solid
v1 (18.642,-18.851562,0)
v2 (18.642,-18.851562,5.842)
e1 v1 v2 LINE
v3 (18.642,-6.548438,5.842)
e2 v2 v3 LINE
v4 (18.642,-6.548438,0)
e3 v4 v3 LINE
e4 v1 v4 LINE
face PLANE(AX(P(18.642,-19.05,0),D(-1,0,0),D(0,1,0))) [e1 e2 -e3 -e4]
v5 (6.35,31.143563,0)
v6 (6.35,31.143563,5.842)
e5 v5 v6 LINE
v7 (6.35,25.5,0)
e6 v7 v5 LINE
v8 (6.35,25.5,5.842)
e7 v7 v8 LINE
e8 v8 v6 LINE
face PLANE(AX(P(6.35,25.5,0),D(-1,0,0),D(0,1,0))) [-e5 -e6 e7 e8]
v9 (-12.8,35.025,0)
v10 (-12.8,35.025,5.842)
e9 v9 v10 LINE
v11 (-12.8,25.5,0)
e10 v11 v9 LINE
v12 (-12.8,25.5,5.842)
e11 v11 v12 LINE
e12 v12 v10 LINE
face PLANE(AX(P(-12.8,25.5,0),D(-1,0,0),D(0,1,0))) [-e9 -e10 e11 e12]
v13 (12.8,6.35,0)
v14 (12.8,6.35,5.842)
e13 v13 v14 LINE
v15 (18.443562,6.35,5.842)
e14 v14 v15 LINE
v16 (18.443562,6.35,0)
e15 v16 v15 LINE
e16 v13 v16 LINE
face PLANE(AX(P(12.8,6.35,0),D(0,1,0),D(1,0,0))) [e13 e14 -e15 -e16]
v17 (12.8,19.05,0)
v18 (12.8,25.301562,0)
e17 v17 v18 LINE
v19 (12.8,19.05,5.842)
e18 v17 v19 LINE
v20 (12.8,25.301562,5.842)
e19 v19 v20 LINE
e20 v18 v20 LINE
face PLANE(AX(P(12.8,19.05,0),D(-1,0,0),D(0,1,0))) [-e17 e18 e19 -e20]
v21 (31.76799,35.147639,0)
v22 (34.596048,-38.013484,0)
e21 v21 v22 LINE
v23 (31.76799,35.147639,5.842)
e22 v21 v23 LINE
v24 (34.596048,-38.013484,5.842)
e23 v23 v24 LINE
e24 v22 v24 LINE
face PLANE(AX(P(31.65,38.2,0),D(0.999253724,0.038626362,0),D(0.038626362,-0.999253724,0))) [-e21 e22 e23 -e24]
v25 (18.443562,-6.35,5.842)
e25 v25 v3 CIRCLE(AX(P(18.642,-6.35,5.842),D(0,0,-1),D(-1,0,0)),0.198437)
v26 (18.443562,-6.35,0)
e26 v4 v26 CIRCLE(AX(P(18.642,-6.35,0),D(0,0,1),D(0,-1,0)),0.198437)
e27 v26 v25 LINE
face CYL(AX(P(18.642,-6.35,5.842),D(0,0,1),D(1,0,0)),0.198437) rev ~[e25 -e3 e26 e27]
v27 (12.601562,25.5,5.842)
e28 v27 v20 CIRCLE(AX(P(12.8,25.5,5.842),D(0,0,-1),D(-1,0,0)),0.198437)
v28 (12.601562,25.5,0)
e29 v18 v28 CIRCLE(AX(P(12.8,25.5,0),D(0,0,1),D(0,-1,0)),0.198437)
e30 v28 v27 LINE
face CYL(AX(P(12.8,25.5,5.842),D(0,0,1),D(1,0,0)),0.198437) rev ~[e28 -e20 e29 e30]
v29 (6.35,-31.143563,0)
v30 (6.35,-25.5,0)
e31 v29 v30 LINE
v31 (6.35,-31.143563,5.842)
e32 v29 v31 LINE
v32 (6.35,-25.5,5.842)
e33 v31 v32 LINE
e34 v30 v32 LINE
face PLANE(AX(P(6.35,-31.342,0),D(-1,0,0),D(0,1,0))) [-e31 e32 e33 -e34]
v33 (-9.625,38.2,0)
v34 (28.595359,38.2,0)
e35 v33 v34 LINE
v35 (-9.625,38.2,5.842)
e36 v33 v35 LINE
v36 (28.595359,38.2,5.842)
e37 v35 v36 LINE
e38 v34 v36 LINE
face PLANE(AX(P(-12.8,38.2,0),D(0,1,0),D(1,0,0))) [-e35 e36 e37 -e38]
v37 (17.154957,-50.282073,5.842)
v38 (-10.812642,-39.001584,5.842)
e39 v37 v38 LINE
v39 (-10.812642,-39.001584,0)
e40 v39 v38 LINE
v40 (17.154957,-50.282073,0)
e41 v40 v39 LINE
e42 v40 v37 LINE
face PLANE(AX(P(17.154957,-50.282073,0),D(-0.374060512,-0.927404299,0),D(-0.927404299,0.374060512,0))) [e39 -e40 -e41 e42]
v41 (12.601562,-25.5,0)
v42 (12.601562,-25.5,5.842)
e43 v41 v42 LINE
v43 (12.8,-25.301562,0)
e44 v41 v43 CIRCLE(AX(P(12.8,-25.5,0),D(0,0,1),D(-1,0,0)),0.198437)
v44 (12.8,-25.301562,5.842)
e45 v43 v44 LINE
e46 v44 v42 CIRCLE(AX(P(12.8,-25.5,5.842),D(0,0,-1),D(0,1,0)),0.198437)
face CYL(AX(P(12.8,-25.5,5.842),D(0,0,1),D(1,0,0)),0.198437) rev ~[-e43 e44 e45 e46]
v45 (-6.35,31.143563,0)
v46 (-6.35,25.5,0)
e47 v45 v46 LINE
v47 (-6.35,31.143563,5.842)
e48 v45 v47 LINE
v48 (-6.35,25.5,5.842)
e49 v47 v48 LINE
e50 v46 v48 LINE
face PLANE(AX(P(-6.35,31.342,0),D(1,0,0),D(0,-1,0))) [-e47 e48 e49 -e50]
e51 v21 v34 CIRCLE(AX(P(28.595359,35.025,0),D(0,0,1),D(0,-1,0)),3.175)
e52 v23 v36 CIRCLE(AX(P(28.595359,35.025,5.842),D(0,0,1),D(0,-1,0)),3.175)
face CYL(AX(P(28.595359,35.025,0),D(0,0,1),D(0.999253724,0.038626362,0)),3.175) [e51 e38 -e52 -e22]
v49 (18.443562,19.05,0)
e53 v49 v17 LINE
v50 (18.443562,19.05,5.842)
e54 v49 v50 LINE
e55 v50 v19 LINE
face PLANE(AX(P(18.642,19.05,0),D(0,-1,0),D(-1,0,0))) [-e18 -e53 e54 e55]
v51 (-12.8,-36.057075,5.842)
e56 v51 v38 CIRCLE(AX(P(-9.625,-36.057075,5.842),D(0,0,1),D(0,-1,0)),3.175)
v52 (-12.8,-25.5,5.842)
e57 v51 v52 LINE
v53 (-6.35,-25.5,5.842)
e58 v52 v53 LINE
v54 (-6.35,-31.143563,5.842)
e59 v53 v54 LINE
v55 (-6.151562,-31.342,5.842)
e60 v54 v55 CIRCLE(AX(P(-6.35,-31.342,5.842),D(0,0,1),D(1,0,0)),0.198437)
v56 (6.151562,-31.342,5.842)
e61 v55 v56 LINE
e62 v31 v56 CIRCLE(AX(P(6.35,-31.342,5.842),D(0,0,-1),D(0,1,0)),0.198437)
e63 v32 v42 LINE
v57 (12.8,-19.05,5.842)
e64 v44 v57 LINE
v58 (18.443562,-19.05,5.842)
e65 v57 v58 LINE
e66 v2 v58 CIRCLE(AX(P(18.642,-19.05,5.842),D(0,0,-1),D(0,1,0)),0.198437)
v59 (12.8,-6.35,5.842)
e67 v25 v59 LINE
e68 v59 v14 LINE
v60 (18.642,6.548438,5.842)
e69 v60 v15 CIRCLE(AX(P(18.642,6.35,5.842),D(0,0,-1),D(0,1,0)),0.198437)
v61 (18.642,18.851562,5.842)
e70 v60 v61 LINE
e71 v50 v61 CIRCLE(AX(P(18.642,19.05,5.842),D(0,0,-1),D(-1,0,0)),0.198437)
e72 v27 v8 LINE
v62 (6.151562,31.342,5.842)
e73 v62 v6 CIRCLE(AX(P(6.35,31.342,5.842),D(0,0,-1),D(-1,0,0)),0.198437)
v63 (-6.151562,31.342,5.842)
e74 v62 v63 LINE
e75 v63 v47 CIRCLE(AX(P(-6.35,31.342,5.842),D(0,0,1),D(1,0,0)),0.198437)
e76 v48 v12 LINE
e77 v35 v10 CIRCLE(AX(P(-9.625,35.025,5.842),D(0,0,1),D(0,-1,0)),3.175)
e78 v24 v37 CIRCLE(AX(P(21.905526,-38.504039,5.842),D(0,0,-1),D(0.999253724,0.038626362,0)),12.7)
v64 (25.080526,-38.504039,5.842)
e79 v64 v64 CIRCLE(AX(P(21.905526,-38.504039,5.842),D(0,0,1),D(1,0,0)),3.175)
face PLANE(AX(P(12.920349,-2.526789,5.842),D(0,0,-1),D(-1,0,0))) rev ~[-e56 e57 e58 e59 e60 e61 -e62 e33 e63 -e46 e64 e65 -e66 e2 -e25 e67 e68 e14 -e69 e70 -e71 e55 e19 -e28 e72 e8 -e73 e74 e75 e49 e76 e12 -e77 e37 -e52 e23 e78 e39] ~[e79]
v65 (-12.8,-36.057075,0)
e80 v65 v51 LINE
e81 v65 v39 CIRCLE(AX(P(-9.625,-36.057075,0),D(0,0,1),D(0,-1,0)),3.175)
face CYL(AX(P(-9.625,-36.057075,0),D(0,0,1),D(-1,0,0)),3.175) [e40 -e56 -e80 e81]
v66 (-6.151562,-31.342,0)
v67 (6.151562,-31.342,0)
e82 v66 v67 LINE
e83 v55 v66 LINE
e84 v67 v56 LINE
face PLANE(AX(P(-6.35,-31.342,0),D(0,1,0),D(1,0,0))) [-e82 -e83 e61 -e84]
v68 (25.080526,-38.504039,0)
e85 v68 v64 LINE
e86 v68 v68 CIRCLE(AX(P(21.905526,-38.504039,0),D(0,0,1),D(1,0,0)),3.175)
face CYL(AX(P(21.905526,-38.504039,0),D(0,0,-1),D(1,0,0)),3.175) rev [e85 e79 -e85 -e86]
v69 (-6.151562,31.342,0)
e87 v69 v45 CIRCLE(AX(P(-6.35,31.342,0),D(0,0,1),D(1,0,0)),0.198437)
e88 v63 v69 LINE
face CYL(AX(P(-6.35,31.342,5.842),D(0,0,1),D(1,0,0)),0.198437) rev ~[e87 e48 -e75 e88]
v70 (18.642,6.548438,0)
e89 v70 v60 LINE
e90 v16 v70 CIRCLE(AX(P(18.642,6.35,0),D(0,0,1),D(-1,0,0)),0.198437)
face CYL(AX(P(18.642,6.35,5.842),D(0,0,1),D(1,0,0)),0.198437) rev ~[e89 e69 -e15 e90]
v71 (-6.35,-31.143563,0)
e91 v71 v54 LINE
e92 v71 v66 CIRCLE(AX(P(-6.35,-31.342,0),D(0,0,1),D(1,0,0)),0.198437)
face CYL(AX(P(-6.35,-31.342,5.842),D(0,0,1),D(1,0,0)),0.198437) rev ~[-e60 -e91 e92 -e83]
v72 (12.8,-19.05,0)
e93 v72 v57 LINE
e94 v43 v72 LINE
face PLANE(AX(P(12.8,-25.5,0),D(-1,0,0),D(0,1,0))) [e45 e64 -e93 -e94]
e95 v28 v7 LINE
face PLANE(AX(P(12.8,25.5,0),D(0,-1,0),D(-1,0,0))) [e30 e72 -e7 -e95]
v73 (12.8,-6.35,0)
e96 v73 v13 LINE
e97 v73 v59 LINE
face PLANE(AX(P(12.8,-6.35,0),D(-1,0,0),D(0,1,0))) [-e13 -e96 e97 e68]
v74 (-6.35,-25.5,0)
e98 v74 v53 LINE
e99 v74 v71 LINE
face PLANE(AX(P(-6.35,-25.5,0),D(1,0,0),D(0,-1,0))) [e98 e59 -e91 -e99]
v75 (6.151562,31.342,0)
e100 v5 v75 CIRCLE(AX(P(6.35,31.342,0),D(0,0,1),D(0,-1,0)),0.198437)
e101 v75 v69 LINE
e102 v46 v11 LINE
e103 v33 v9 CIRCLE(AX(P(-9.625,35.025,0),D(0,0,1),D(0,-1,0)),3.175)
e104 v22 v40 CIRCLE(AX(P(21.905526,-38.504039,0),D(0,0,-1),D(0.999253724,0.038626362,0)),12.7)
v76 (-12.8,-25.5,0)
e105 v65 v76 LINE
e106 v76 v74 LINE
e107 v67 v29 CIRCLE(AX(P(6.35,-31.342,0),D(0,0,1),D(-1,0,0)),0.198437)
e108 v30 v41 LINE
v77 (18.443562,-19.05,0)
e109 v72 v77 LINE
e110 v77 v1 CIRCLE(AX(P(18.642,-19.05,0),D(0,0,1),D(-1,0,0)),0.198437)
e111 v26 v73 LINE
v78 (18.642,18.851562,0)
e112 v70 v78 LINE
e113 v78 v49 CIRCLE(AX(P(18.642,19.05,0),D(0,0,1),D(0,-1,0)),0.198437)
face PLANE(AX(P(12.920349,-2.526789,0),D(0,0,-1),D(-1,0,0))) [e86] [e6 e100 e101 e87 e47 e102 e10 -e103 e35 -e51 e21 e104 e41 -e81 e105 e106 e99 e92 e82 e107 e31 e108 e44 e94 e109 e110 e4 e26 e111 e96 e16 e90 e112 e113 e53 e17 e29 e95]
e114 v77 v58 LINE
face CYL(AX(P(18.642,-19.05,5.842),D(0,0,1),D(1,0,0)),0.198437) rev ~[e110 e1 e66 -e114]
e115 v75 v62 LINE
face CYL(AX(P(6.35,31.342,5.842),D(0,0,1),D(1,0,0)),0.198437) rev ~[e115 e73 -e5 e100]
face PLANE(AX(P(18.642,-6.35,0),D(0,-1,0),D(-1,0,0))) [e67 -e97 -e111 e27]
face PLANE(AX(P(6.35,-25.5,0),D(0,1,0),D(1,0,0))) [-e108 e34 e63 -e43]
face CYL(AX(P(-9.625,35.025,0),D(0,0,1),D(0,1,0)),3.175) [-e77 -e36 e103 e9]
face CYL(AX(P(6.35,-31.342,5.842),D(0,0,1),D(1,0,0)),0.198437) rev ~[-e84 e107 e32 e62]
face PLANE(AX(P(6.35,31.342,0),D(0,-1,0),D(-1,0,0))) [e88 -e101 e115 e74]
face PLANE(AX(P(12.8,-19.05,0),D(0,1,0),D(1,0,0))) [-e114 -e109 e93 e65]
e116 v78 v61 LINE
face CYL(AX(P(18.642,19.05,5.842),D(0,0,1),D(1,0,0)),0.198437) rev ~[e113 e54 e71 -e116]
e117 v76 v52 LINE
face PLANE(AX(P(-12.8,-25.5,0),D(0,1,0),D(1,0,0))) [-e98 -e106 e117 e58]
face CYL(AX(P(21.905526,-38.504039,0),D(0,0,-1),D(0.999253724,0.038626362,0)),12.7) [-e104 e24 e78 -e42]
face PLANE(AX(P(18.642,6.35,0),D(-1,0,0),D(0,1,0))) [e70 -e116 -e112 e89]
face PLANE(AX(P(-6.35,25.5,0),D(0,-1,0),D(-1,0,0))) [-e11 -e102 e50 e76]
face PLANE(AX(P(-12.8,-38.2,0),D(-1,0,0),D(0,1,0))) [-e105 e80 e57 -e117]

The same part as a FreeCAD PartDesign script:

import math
import FreeCAD as App
import Part
import Sketcher
from FreeCAD import Vector
Q = App.Units.Quantity


def edges_at(feature, points):
    """Names of the edges that pass closest to the given points."""
    edges = feature.Shape.Edges
    near = lambda p: min(range(len(edges)), key=lambda i: edges[i].distToShape(Part.Vertex(*p))[0])
    return sorted({f"Edge{near(p) + 1}" for p in points})

doc = App.newDocument("Part")
body = doc.addObject("PartDesign::Body", "Body")

# Sketch on XY plane
sketch1 = doc.addObject("Sketcher::SketchObject", "Sketch")
body.addObject(sketch1)
sketch1.AttachmentSupport = (doc.XY_Plane, [""])
sketch1.MapMode = "FlatFace"
sketch1.addGeometry(Part.LineSegment(Vector(-6.3, -25.5, 0), Vector(-12.8, -25.5, 0)), False)
sketch1.addGeometry(Part.LineSegment(Vector(-12.8, -25.5, 0), Vector(-12.8, -38.2, 0)), False)
sketch1.addGeometry(Part.LineSegment(Vector(-12.8, -38.2, 0), Vector(17.2, -50.3, 0)), False)
sketch1.addGeometry(Part.ArcOfCircle(Part.Circle(Vector(21.9, -38.5, 0), Vector(0, 0, 1), 12.7), math.radians(-112), math.radians(2)), False)
sketch1.addGeometry(Part.LineSegment(Vector(34.6, -38, 0), Vector(31.6, 38.2, 0)), False)
sketch1.addGeometry(Part.LineSegment(Vector(31.6, 38.2, 0), Vector(-12.8, 38.2, 0)), False)
sketch1.addGeometry(Part.LineSegment(Vector(-12.8, 38.2, 0), Vector(-12.8, 25.5, 0)), False)
sketch1.addGeometry(Part.LineSegment(Vector(-12.8, 25.5, 0), Vector(-6.3, 25.5, 0)), False)
sketch1.addGeometry(Part.LineSegment(Vector(-6.3, 25.5, 0), Vector(-6.3, 31.3, 0)), False)
sketch1.addGeometry(Part.LineSegment(Vector(-6.3, 31.3, 0), Vector(6.3, 31.3, 0)), False)
sketch1.addGeometry(Part.LineSegment(Vector(6.3, 31.3, 0), Vector(6.3, 25.5, 0)), False)
sketch1.addGeometry(Part.LineSegment(Vector(6.3, 25.5, 0), Vector(12.8, 25.5, 0)), False)
sketch1.addGeometry(Part.LineSegment(Vector(12.8, 25.5, 0), Vector(12.8, 19.1, 0)), False)
sketch1.addGeometry(Part.LineSegment(Vector(12.8, 19.1, 0), Vector(18.6, 19.1, 0)), False)
sketch1.addGeometry(Part.LineSegment(Vector(18.6, 19.1, 0), Vector(18.6, 6.3, 0)), False)
sketch1.addGeometry(Part.LineSegment(Vector(18.6, 6.3, 0), Vector(12.8, 6.3, 0)), False)
sketch1.addGeometry(Part.LineSegment(Vector(12.8, 6.3, 0), Vector(12.8, -6.3, 0)), False)
sketch1.addGeometry(Part.LineSegment(Vector(12.8, -6.3, 0), Vector(18.6, -6.3, 0)), False)
sketch1.addGeometry(Part.LineSegment(Vector(18.6, -6.3, 0), Vector(18.6, -19.1, 0)), False)
sketch1.addGeometry(Part.LineSegment(Vector(18.6, -19.1, 0), Vector(12.8, -19.1, 0)), False)
sketch1.addGeometry(Part.LineSegment(Vector(12.8, -19.1, 0), Vector(12.8, -25.5, 0)), False)
sketch1.addGeometry(Part.LineSegment(Vector(12.8, -25.5, 0), Vector(6.3, -25.5, 0)), False)
sketch1.addGeometry(Part.LineSegment(Vector(6.3, -25.5, 0), Vector(6.3, -31.3, 0)), False)
sketch1.addGeometry(Part.LineSegment(Vector(6.3, -31.3, 0), Vector(-6.3, -31.3, 0)), False)
sketch1.addGeometry(Part.LineSegment(Vector(-6.3, -31.3, 0), Vector(-6.3, -25.5, 0)), False)
sketch1.addGeometry(Part.Circle(Vector(21.9, -38.5, 0), Vector(0, 0, 1), 3.2), False)
sketch1.addConstraint(Sketcher.Constraint("Coincident", 0, 2, 1, 1))
sketch1.addConstraint(Sketcher.Constraint("Coincident", 1, 2, 2, 1))
sketch1.addConstraint(Sketcher.Constraint("Tangent", 2, 2, 3, 1))
sketch1.addConstraint(Sketcher.Constraint("Tangent", 3, 2, 4, 1))
sketch1.addConstraint(Sketcher.Constraint("Coincident", 4, 2, 5, 1))
sketch1.addConstraint(Sketcher.Constraint("Coincident", 5, 2, 6, 1))
sketch1.addConstraint(Sketcher.Constraint("Coincident", 6, 2, 7, 1))
sketch1.addConstraint(Sketcher.Constraint("Coincident", 7, 2, 8, 1))
sketch1.addConstraint(Sketcher.Constraint("Coincident", 8, 2, 9, 1))
sketch1.addConstraint(Sketcher.Constraint("Coincident", 9, 2, 10, 1))
sketch1.addConstraint(Sketcher.Constraint("Coincident", 10, 2, 11, 1))
sketch1.addConstraint(Sketcher.Constraint("Coincident", 11, 2, 12, 1))
sketch1.addConstraint(Sketcher.Constraint("Coincident", 12, 2, 13, 1))
sketch1.addConstraint(Sketcher.Constraint("Coincident", 13, 2, 14, 1))
sketch1.addConstraint(Sketcher.Constraint("Coincident", 14, 2, 15, 1))
sketch1.addConstraint(Sketcher.Constraint("Coincident", 15, 2, 16, 1))
sketch1.addConstraint(Sketcher.Constraint("Coincident", 16, 2, 17, 1))
sketch1.addConstraint(Sketcher.Constraint("Coincident", 17, 2, 18, 1))
sketch1.addConstraint(Sketcher.Constraint("Coincident", 18, 2, 19, 1))
sketch1.addConstraint(Sketcher.Constraint("Coincident", 19, 2, 20, 1))
sketch1.addConstraint(Sketcher.Constraint("Coincident", 20, 2, 21, 1))
sketch1.addConstraint(Sketcher.Constraint("Coincident", 21, 2, 22, 1))
sketch1.addConstraint(Sketcher.Constraint("Coincident", 22, 2, 23, 1))
sketch1.addConstraint(Sketcher.Constraint("Coincident", 23, 2, 24, 1))
sketch1.addConstraint(Sketcher.Constraint("Coincident", 24, 2, 0, 1))
sketch1.addConstraint(Sketcher.Constraint("Horizontal", 0))
sketch1.addConstraint(Sketcher.Constraint("Vertical", 1))
sketch1.addConstraint(Sketcher.Constraint("Horizontal", 5))
sketch1.addConstraint(Sketcher.Constraint("Vertical", 6))
sketch1.addConstraint(Sketcher.Constraint("Horizontal", 7))
sketch1.addConstraint(Sketcher.Constraint("Vertical", 8))
sketch1.addConstraint(Sketcher.Constraint("Horizontal", 9))
sketch1.addConstraint(Sketcher.Constraint("Vertical", 10))
sketch1.addConstraint(Sketcher.Constraint("Horizontal", 11))
sketch1.addConstraint(Sketcher.Constraint("Vertical", 12))
sketch1.addConstraint(Sketcher.Constraint("Horizontal", 13))
sketch1.addConstraint(Sketcher.Constraint("Vertical", 14))
sketch1.addConstraint(Sketcher.Constraint("Horizontal", 15))
sketch1.addConstraint(Sketcher.Constraint("Vertical", 16))
sketch1.addConstraint(Sketcher.Constraint("Horizontal", 17))
sketch1.addConstraint(Sketcher.Constraint("Vertical", 18))
sketch1.addConstraint(Sketcher.Constraint("Horizontal", 19))
sketch1.addConstraint(Sketcher.Constraint("Vertical", 20))
sketch1.addConstraint(Sketcher.Constraint("Horizontal", 21))
sketch1.addConstraint(Sketcher.Constraint("Vertical", 22))
sketch1.addConstraint(Sketcher.Constraint("Horizontal", 23))
sketch1.addConstraint(Sketcher.Constraint("Vertical", 24))
sketch1.addConstraint(Sketcher.Constraint("Coincident", 25, 3, 3, 3))
sketch1.addConstraint(Sketcher.Constraint("Symmetric", 0, 2, 11, 2, -1, 1))
sketch1.addConstraint(Sketcher.Constraint("Symmetric", 6, 2, 20, 2, -1, 1))
sketch1.addConstraint(Sketcher.Constraint("Symmetric", 8, 2, 22, 2, -1, 1))
sketch1.addConstraint(Sketcher.Constraint("Symmetric", 7, 2, 10, 2, -2))
sketch1.addConstraint(Sketcher.Constraint("Symmetric", 1, 2, 5, 2, -1))
sketch1.addConstraint(Sketcher.Constraint("Symmetric", 14, 2, 17, 2, -1))
sketch1.addConstraint(Sketcher.Constraint("Vertical", 12, 2, 15, 2))
sketch1.addConstraint(Sketcher.Constraint("Vertical", 8, 2, 23, 2))
sketch1.addConstraint(Sketcher.Constraint("Equal", 23, 1))
sketch1.addConstraint(Sketcher.Constraint("Equal", 19, 8))
sketch1.addConstraint(Sketcher.Constraint("Equal", 21, 12))
sketch1.addConstraint(Sketcher.Constraint("Equal", 6, 14))
sketch1.addConstraint(Sketcher.Constraint("Equal", 14, 16))
sketch1.addConstraint(Sketcher.Constraint("Equal", 16, 18))
sketch1.addConstraint(Sketcher.Constraint("Radius", 3, Q("0.5 in")))
sketch1.addConstraint(Sketcher.Constraint("Diameter", 25, Q("0.25 in")))
sketch1.addConstraint(Sketcher.Constraint("DistanceX", 9, 1, 9, 2, Q("0.5 in")))
sketch1.addConstraint(Sketcher.Constraint("DistanceX", 5, 2, 5, 1, Q("1.75 in")))
sketch1.addConstraint(Sketcher.Constraint("DistanceX", 13, 1, 13, 2, Q("0.23 in")))
sketch1.addConstraint(Sketcher.Constraint("DistanceX", 0, 2, 0, 1, Q("6.45 mm")))
sketch1.addConstraint(Sketcher.Constraint("DistanceY", 3, 3, -1, 1, Q("38.504039 mm")))
sketch1.addConstraint(Sketcher.Constraint("DistanceX", -1, 1, 3, 2, Q("34.596048 mm")))
pad1 = doc.addObject("PartDesign::Pad", "Pad")
body.addObject(pad1)
pad1.Profile = sketch1
pad1.Length = Q("0.23 in")
doc.recompute()

fillet = doc.addObject("PartDesign::Fillet", "Fillet")
body.addObject(fillet)
fillet.Base = (pad1, edges_at(pad1, [(-12.8, 38.2, 2.921), (31.65, 38.2, 2.921), (-12.8, -38.2, 2.921)]))
fillet.Radius = Q("0.125 in")

# Sketch on XY plane
sketch2 = doc.addObject("Sketcher::SketchObject", "Sketch001")
body.addObject(sketch2)
sketch2.AttachmentSupport = (doc.XY_Plane, [""])
sketch2.MapMode = "FlatFace"
sketch2.AttachmentOffset = App.Placement(Vector(0, 0, 0.23 * 25.4), App.Rotation())
sketch2.addGeometry(Part.Circle(Vector(-6.35, 31.34, 0), Vector(0, 0, 1), 0.2), False)
sketch2.addGeometry(Part.Circle(Vector(6.35, 31.34, 0), Vector(0, 0, 1), 0.2), False)
sketch2.addGeometry(Part.Circle(Vector(12.8, 25.5, 0), Vector(0, 0, 1), 0.2), False)
sketch2.addGeometry(Part.Circle(Vector(18.64, 6.35, 0), Vector(0, 0, 1), 0.2), False)
sketch2.addGeometry(Part.Circle(Vector(18.64, 19.05, 0), Vector(0, 0, 1), 0.2), False)
sketch2.addGeometry(Part.Circle(Vector(18.64, -19.05, 0), Vector(0, 0, 1), 0.2), False)
sketch2.addGeometry(Part.Circle(Vector(18.64, -6.35, 0), Vector(0, 0, 1), 0.2), False)
sketch2.addGeometry(Part.Circle(Vector(12.8, -25.5, 0), Vector(0, 0, 1), 0.2), False)
sketch2.addGeometry(Part.Circle(Vector(6.35, -31.34, 0), Vector(0, 0, 1), 0.2), False)
sketch2.addGeometry(Part.Circle(Vector(-6.35, -31.34, 0), Vector(0, 0, 1), 0.2), False)
sketch2.addConstraint(Sketcher.Constraint("Equal", 0, 1))
sketch2.addConstraint(Sketcher.Constraint("Equal", 1, 2))
sketch2.addConstraint(Sketcher.Constraint("Equal", 2, 3))
sketch2.addConstraint(Sketcher.Constraint("Equal", 3, 4))
sketch2.addConstraint(Sketcher.Constraint("Equal", 4, 5))
sketch2.addConstraint(Sketcher.Constraint("Equal", 5, 6))
sketch2.addConstraint(Sketcher.Constraint("Equal", 6, 7))
sketch2.addConstraint(Sketcher.Constraint("Equal", 7, 8))
sketch2.addConstraint(Sketcher.Constraint("Equal", 8, 9))
sketch2.addConstraint(Sketcher.Constraint("Symmetric", 0, 3, 8, 3, -1, 1))
sketch2.addConstraint(Sketcher.Constraint("Symmetric", 1, 3, 9, 3, -1, 1))
sketch2.addConstraint(Sketcher.Constraint("Symmetric", 0, 3, 1, 3, -2))
sketch2.addConstraint(Sketcher.Constraint("Symmetric", 4, 3, 5, 3, -1))
sketch2.addConstraint(Sketcher.Constraint("Symmetric", 3, 3, 6, 3, -1))
sketch2.addConstraint(Sketcher.Constraint("Symmetric", 2, 3, 7, 3, -1))
sketch2.addConstraint(Sketcher.Constraint("Vertical", 3, 3, 4, 3))
sketch2.addConstraint(Sketcher.Constraint("Diameter", 0, Q("0.015625 in")))
sketch2.addConstraint(Sketcher.Constraint("DistanceY", 5, 3, 3, 3, Q("1 in")))
sketch2.addConstraint(Sketcher.Constraint("DistanceX", 0, 3, 1, 3, Q("0.5 in")))
sketch2.addConstraint(Sketcher.Constraint("DistanceY", 3, 3, 4, 3, Q("0.5 in")))
sketch2.addConstraint(Sketcher.Constraint("DistanceY", 2, 3, 1, 3, Q("0.23 in")))
sketch2.addConstraint(Sketcher.Constraint("DistanceX", 2, 3, 3, 3, Q("0.23 in")))
sketch2.addConstraint(Sketcher.Constraint("DistanceY", -1, 1, 0, 3, Q("31.342 mm")))
sketch2.addConstraint(Sketcher.Constraint("DistanceX", -1, 1, 2, 3, Q("12.8 mm")))
pocket1 = doc.addObject("PartDesign::Pocket", "Pocket")
body.addObject(pocket1)
pocket1.Profile = sketch2
pocket1.Type = "ThroughAll"

doc.recompute()
